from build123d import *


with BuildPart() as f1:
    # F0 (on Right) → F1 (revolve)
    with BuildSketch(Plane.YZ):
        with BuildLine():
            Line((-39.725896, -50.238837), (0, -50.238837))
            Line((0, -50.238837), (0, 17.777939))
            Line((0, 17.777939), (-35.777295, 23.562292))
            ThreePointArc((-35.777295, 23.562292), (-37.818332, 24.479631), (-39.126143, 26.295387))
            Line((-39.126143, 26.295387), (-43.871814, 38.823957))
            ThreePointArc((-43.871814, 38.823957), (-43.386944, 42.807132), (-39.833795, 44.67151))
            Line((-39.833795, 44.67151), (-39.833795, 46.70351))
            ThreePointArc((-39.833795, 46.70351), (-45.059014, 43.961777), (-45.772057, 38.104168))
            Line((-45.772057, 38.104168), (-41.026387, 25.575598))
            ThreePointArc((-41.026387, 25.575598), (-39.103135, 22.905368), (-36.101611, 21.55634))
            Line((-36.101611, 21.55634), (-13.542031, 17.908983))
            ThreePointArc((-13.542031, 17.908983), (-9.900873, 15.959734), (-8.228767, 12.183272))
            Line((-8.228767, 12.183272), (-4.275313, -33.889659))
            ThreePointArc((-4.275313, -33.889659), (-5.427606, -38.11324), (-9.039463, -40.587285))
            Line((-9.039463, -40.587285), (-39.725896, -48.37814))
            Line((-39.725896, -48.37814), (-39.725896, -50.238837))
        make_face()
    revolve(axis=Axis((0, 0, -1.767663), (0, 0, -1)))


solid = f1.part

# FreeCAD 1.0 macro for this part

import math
import FreeCAD as App
import Part
import Sketcher

V = App.Vector
Q = App.Units.Quantity

doc = App.newDocument("Part")
body = doc.addObject("PartDesign::Body", "Body")

sketch1 = body.newObject("Sketcher::SketchObject", "Sketch")
sketch1.AttachmentSupport = (doc.getObject("YZ_Plane"), [""])
sketch1.MapMode = "FlatFace"
sketch1.addGeometry(Part.LineSegment(V(-39.725896, -50.238837, 0), V(0, -50.238837, 0)), False)
sketch1.addGeometry(Part.LineSegment(V(0, -50.238837, 0), V(0, 17.777939, 0)), False)
sketch1.addGeometry(Part.LineSegment(V(0, 17.777939, 0), V(-35.777295, 23.562292, 0)), False)
sketch1.addGeometry(Part.ArcOfCircle(Part.Circle(V(-35.088125, 27.82494, 0), V(0, 0, 1), 4.318), math.radians(-159.253913), math.radians(-99.183913)), False)
sketch1.addGeometry(Part.LineSegment(V(-39.126143, 26.295387, 0), V(-43.871814, 38.823957, 0)), False)
sketch1.addGeometry(Part.ArcOfCircle(Part.Circle(V(-39.833796, 40.35351, 0), V(0, 0, 1), 4.318), math.radians(89.999992), math.radians(200.746087)), False)
sketch1.addGeometry(Part.LineSegment(V(-39.833795, 44.67151, 0), V(-39.833795, 46.70351, 0)), False)
sketch1.addGeometry(Part.ArcOfCircle(Part.Circle(V(-39.833796, 40.353511, 0), V(0, 0, 1), 6.349999), math.radians(89.999992), math.radians(200.746094)), False)
sketch1.addGeometry(Part.LineSegment(V(-45.772057, 38.104168, 0), V(-41.026387, 25.575598, 0)), False)
sketch1.addGeometry(Part.ArcOfCircle(Part.Circle(V(-35.088123, 27.824941, 0), V(0, 0, 1), 6.350002), math.radians(-159.253911), math.radians(-99.183929)), False)
sketch1.addGeometry(Part.LineSegment(V(-36.101611, 21.55634, 0), V(-13.542031, 17.908983, 0)), False)
sketch1.addGeometry(Part.ArcOfCircle(Part.Circle(V(-14.555515, 11.640385, 0), V(0, 0, 1), 6.349998), math.radians(4.904435), math.radians(80.816094)), False)
sketch1.addGeometry(Part.LineSegment(V(-8.228767, 12.183272, 0), V(-4.275313, -33.889659, 0)), False)
sketch1.addGeometry(Part.ArcOfCircle(Part.Circle(V(-10.602064, -34.432548, 0), V(0, 0, 1), 6.35), math.radians(-75.754401), math.radians(4.904454)), False)
sketch1.addGeometry(Part.LineSegment(V(-9.039463, -40.587285, 0), V(-39.725896, -48.37814, 0)), False)
sketch1.addGeometry(Part.LineSegment(V(-39.725896, -48.37814, 0), V(-39.725896, -50.238837, 0)), False)
sketch1.addConstraint(Sketcher.Constraint("Coincident", 0, 2, 1, 1))
sketch1.addConstraint(Sketcher.Constraint("Coincident", 1, 2, 2, 1))
sketch1.addConstraint(Sketcher.Constraint("Tangent", 2, 2, 3, 2))
sketch1.addConstraint(Sketcher.Constraint("Tangent", 3, 1, 4, 1))
sketch1.addConstraint(Sketcher.Constraint("Tangent", 4, 2, 5, 2))
sketch1.addConstraint(Sketcher.Constraint("Coincident", 5, 1, 6, 1))
sketch1.addConstraint(Sketcher.Constraint("Coincident", 6, 2, 7, 1))
sketch1.addConstraint(Sketcher.Constraint("Tangent", 7, 2, 8, 1))
sketch1.addConstraint(Sketcher.Constraint("Tangent", 8, 2, 9, 1))
sketch1.addConstraint(Sketcher.Constraint("Tangent", 9, 2, 10, 1))
sketch1.addConstraint(Sketcher.Constraint("Tangent", 10, 2, 11, 2))
sketch1.addConstraint(Sketcher.Constraint("Tangent", 11, 1, 12, 1))
sketch1.addConstraint(Sketcher.Constraint("Tangent", 12, 2, 13, 2))
sketch1.addConstraint(Sketcher.Constraint("Tangent", 13, 1, 14, 1))
sketch1.addConstraint(Sketcher.Constraint("Coincident", 14, 2, 15, 1))
sketch1.addConstraint(Sketcher.Constraint("Coincident", 15, 2, 0, 1))
sketch1.addConstraint(Sketcher.Constraint("Horizontal", 0))
sketch1.addConstraint(Sketcher.Constraint("Vertical", 1))
sketch1.addConstraint(Sketcher.Constraint("Vertical", 6))
sketch1.addConstraint(Sketcher.Constraint("Vertical", 15))
sketch1.addConstraint(Sketcher.Constraint("Coincident", 7, 3, 5, 3))
sketch1.addConstraint(Sketcher.Constraint("Coincident", 9, 3, 3, 3))
sketch1.addConstraint(Sketcher.Constraint("Equal", 3, 5))
sketch1.addConstraint(Sketcher.Constraint("Equal", 7, 11))
sketch1.addConstraint(Sketcher.Constraint("Equal", 9, 13))
sketch1.addConstraint(Sketcher.Constraint("PointOnObject", 0, 2, -2))
sketch1.addConstraint(Sketcher.Constraint("Parallel", 4, 8))
sketch1.addConstraint(Sketcher.Constraint("Parallel", 2, 10))
sketch1.addConstraint(Sketcher.Constraint("Vertical", 7, 3, 5, 1))
sketch1.addConstraint(Sketcher.Constraint("Radius", 3, Q("0.17 in")))
sketch1.addConstraint(Sketcher.Constraint("Radius", 7, Q("0.25 in")))
sketch1.addConstraint(Sketcher.Constraint("DistanceY", 1, 2, 3, 3, 10.047001))
sketch1.addConstraint(Sketcher.Constraint("DistanceX", 5, 3, 2, 2, 4.056501))
sketch1.addConstraint(Sketcher.Constraint("DistanceX", 13, 3, 13, 1, 1.562601))
sketch1.addConstraint(Sketcher.Constraint("Distance", 12, 46.24224))
sketch1.addConstraint(Sketcher.Constraint("DistanceX", 0, 1, 0, 2, 39.725896))
sketch1.addConstraint(Sketcher.Constraint("DistanceY", 1, 1, 1, 2, 68.016776))
sketch1.addConstraint(Sketcher.Constraint("DistanceY", 15, 2, 15, 1, 1.860697))
sketch1.addConstraint(Sketcher.Constraint("DistanceY", -1, 1, 3, 3, 27.82494))
sketch1.addConstraint(Sketcher.Constraint("DistanceY", -1, 1, 5, 3, 40.35351))
sketch1.addConstraint(Sketcher.Constraint("DistanceY", 13, 3, -1, 1, 34.432548))
sketch1.addConstraint(Sketcher.Constraint("DistanceX", 9, 2, -1, 1, 36.101611))
revolution = body.newObject("PartDesign::Revolution", "Revolution")
revolution.Profile = sketch1
revolution.ReferenceAxis = (sketch1, ["V_Axis"])
revolution.Angle = 360

doc.recompute()
